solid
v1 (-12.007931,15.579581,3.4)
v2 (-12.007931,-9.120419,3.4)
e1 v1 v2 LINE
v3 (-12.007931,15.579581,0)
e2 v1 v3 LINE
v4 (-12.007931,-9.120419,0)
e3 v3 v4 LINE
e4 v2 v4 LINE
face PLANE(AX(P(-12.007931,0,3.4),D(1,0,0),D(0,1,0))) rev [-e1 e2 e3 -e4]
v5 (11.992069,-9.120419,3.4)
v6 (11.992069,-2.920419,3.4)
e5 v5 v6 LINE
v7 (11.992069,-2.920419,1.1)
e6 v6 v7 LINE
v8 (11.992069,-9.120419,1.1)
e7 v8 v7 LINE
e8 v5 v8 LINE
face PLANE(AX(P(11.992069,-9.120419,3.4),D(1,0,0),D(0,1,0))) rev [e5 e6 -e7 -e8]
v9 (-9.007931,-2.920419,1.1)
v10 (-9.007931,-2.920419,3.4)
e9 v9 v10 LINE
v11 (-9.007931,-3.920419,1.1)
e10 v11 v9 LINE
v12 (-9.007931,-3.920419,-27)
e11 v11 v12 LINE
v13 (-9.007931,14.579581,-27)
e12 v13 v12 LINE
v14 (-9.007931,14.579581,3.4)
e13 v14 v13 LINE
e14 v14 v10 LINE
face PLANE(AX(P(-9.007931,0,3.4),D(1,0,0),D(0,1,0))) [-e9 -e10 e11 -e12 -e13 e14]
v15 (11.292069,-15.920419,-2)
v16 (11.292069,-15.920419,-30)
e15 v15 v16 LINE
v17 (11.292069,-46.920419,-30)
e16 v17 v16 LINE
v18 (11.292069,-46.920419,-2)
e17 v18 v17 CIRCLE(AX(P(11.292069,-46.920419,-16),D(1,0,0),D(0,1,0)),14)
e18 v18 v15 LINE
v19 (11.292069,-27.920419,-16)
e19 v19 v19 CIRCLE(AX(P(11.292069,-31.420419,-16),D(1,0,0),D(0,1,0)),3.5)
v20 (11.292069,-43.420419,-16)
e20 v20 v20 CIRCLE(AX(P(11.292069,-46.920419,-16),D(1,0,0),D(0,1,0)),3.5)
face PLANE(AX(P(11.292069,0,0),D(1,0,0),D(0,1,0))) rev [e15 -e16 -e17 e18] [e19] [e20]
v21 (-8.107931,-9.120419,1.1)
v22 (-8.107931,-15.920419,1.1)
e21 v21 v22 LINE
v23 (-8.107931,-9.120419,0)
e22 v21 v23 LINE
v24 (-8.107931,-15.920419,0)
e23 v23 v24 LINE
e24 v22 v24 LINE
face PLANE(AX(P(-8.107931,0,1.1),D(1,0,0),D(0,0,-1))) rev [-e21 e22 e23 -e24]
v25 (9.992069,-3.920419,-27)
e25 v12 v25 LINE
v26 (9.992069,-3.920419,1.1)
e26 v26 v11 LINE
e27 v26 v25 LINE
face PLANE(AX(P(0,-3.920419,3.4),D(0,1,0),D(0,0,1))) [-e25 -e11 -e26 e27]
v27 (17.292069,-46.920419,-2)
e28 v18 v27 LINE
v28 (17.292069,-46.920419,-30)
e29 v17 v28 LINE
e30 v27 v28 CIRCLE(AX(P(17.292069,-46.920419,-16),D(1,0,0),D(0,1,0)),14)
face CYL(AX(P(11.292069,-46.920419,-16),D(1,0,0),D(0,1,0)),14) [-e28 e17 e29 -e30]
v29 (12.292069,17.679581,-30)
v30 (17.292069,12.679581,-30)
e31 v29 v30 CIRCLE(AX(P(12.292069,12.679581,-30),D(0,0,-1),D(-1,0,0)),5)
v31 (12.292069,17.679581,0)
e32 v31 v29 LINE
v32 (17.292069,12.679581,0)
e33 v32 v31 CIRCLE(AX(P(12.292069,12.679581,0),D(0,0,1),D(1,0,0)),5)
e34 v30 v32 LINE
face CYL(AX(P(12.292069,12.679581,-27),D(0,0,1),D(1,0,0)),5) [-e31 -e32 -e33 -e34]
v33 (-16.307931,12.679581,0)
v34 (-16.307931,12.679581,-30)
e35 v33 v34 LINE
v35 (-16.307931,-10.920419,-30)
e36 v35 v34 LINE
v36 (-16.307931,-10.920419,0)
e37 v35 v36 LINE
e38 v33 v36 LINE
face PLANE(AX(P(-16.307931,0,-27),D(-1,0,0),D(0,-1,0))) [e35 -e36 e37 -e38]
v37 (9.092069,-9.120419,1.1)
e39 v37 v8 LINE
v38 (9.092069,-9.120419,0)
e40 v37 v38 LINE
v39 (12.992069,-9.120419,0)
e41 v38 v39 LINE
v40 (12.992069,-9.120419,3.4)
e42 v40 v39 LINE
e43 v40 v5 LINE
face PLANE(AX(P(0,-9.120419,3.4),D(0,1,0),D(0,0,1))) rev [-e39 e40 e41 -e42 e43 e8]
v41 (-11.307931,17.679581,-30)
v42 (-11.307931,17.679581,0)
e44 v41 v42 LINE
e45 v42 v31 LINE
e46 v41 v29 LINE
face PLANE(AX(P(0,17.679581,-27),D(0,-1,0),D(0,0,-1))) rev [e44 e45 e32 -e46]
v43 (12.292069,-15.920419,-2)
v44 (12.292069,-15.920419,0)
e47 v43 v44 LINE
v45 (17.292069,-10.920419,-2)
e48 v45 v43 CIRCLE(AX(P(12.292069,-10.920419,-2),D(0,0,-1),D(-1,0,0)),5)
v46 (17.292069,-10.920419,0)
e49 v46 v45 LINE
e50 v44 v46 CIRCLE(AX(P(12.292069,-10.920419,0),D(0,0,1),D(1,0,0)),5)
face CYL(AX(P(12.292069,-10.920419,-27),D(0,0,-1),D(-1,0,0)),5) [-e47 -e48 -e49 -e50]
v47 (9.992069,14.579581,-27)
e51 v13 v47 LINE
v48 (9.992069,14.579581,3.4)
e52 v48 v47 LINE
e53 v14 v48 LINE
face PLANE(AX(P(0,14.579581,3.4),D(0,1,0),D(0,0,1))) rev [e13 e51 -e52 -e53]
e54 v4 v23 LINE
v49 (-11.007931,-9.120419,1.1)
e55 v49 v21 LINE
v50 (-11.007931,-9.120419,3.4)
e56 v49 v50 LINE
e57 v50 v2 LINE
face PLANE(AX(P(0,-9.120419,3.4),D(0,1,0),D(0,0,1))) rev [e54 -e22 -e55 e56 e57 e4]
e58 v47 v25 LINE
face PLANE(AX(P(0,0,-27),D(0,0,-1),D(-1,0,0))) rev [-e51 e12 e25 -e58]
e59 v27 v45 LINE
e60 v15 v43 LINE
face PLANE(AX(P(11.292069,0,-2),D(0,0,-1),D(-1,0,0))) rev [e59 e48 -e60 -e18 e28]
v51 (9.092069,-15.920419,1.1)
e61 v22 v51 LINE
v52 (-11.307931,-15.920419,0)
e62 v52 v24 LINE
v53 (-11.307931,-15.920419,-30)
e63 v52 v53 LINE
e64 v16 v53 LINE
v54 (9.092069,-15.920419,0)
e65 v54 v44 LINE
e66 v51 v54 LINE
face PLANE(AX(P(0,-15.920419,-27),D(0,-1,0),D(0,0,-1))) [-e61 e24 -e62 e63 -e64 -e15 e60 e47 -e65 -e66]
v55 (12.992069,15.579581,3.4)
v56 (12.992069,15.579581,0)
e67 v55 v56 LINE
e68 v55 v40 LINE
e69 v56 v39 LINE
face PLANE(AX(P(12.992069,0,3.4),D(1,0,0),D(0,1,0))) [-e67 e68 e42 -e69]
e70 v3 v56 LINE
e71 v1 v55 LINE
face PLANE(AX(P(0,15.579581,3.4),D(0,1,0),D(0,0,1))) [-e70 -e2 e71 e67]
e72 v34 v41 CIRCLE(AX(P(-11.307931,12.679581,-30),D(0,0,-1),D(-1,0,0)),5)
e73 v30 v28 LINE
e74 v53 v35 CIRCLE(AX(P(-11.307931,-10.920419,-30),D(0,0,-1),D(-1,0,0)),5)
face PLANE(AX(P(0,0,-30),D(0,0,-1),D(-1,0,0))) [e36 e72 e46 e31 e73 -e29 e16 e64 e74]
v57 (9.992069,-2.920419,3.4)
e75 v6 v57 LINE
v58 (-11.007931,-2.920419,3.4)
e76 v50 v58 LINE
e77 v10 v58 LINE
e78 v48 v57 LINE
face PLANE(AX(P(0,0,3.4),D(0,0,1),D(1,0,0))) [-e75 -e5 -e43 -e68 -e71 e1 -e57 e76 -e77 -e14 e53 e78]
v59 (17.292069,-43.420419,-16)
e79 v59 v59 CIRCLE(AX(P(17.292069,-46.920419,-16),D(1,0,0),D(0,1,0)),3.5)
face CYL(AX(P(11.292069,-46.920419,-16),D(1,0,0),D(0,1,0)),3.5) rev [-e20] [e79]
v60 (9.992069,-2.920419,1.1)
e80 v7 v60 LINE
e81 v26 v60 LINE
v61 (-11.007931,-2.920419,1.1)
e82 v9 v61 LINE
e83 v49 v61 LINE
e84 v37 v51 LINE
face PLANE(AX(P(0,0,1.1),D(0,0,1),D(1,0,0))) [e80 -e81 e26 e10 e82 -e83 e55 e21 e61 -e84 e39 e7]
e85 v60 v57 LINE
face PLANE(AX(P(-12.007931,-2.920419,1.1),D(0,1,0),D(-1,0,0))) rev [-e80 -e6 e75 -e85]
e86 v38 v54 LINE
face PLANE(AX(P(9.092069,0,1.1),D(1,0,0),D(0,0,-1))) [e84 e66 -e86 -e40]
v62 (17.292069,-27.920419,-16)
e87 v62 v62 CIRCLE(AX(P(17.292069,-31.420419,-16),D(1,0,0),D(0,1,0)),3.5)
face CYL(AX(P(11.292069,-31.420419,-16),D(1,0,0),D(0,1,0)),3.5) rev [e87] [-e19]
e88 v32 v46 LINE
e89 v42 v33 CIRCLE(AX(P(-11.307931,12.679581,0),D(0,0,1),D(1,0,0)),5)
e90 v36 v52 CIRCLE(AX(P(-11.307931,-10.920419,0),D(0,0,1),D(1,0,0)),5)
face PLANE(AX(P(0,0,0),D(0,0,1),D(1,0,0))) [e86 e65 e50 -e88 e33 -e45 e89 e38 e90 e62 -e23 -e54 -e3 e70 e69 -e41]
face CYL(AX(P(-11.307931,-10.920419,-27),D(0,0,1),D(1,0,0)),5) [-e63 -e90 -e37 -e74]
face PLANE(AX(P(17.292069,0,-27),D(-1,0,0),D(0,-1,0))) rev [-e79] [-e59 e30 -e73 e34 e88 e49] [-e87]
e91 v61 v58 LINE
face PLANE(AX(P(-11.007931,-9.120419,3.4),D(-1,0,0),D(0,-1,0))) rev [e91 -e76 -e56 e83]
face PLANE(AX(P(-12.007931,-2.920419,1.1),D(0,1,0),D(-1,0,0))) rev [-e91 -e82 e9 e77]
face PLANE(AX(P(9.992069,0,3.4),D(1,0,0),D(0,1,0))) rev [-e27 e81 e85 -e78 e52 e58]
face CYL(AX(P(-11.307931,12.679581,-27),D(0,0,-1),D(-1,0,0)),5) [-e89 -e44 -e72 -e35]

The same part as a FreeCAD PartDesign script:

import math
import FreeCAD as App
import Part
import Sketcher
from FreeCAD import Vector
Q = App.Units.Quantity


def edges_at(feature, points):
    """Names of the edges that pass closest to the given points."""
    edges = feature.Shape.Edges
    near = lambda p: min(range(len(edges)), key=lambda i: edges[i].distToShape(Part.Vertex(*p))[0])
    return sorted({f"Edge{near(p) + 1}" for p in points})


def add_polygon(sketch, points):
    """Adds a closed chain of lines whose ends are joined by coincident constraints."""
    first, n = sketch.GeometryCount, len(points)
    for a, b in zip(points, points[1:] + points[:1]):
        sketch.addGeometry(Part.LineSegment(App.Vector(*a, 0), App.Vector(*b, 0)), False)
    for i in range(n):
        sketch.addConstraint(Sketcher.Constraint("Coincident", first + i, 2, first + (i + 1) % n, 1))

doc = App.newDocument("Part")
body = doc.addObject("PartDesign::Body", "Body")

sketch1 = body.newObject("Sketcher::SketchObject", "Sketch")
sketch1.AttachmentSupport = (doc.getObject("XY_Plane"), [""])
sketch1.MapMode = "FlatFace"
add_polygon(sketch1, [(-12, 16), (-12, -9), (13, -9), (13, 16)])
add_polygon(sketch1, [(10, -4), (-9, -4), (-9, 15), (10, 15)])
sketch1.addConstraint(Sketcher.Constraint("Vertical", 0))
sketch1.addConstraint(Sketcher.Constraint("Horizontal", 1))
sketch1.addConstraint(Sketcher.Constraint("Vertical", 2))
sketch1.addConstraint(Sketcher.Constraint("Horizontal", 3))
sketch1.addConstraint(Sketcher.Constraint("Horizontal", 4))
sketch1.addConstraint(Sketcher.Constraint("Vertical", 5))
sketch1.addConstraint(Sketcher.Constraint("Horizontal", 6))
sketch1.addConstraint(Sketcher.Constraint("Vertical", 7))
sketch1.addConstraint(Sketcher.Constraint("DistanceX", 1, 1, 1, 2, Q("25 mm")))
sketch1.addConstraint(Sketcher.Constraint("DistanceX", 4, 2, 4, 1, Q("19 mm")))
sketch1.addConstraint(Sketcher.Constraint("DistanceY", 0, 2, 0, 1, Q("24.7 mm")))
sketch1.addConstraint(Sketcher.Constraint("DistanceY", 5, 1, 5, 2, Q("18.5 mm")))
sketch1.addConstraint(Sketcher.Constraint("DistanceX", 0, 2, 4, 2, Q("3 mm")))
sketch1.addConstraint(Sketcher.Constraint("DistanceY", 5, 2, 3, 2, Q("1 mm")))
sketch1.addConstraint(Sketcher.Constraint("DistanceX", 0, 2, -1, 1, Q("12.007931 mm")))
sketch1.addConstraint(Sketcher.Constraint("DistanceY", 0, 2, -1, 1, Q("9.120419 mm")))
pad1 = body.newObject("PartDesign::Pad", "Pad")
pad1.Profile = sketch1
pad1.Length = 3.4

sketch2 = body.newObject("Sketcher::SketchObject", "Sketch001")
sketch2.AttachmentSupport = (doc.getObject("XY_Plane"), [""])
sketch2.MapMode = "FlatFace"
add_polygon(sketch2, [(-16, 18), (-16, -16), (17, -16), (17, 18)])
add_polygon(sketch2, [(10, -4), (-9, -4), (-9, 15), (10, 15)])
sketch2.addConstraint(Sketcher.Constraint("Vertical", 0))
sketch2.addConstraint(Sketcher.Constraint("Horizontal", 1))
sketch2.addConstraint(Sketcher.Constraint("Vertical", 2))
sketch2.addConstraint(Sketcher.Constraint("Horizontal", 3))
sketch2.addConstraint(Sketcher.Constraint("Horizontal", 4))
sketch2.addConstraint(Sketcher.Constraint("Vertical", 5))
sketch2.addConstraint(Sketcher.Constraint("Horizontal", 6))
sketch2.addConstraint(Sketcher.Constraint("Vertical", 7))
sketch2.addConstraint(Sketcher.Constraint("Equal", 3, 0))
sketch2.addConstraint(Sketcher.Constraint("DistanceX", 4, 2, 4, 1, Q("19 mm")))
sketch2.addConstraint(Sketcher.Constraint("DistanceX", 1, 1, 1, 2, Q("33.6 mm")))
sketch2.addConstraint(Sketcher.Constraint("DistanceY", 5, 1, 5, 2, Q("18.5 mm")))
sketch2.addConstraint(Sketcher.Constraint("DistanceY", 0, 2, 4, 2, Q("12 mm")))
sketch2.addConstraint(Sketcher.Constraint("DistanceX", 0, 2, 4, 2, Q("7.3 mm")))
sketch2.addConstraint(Sketcher.Constraint("DistanceX", 0, 2, -1, 1, Q("16.307931 mm")))
sketch2.addConstraint(Sketcher.Constraint("DistanceY", 0, 2, -1, 1, Q("15.920419 mm")))
pad2 = body.newObject("PartDesign::Pad", "Pad001")
pad2.Profile = sketch2
pad2.Length = 27
pad2.Reversed = True

sketch3 = body.newObject("Sketcher::SketchObject", "Sketch002")
sketch3.AttachmentSupport = (doc.getObject("XY_Plane"), [""])
sketch3.MapMode = "FlatFace"
sketch3.AttachmentOffset = App.Placement(Vector(0, 0, -27), App.Rotation())
add_polygon(sketch3, [(17, 18), (17, -16), (-16, -16), (-16, 18)])
sketch3.addConstraint(Sketcher.Constraint("Vertical", 0))
sketch3.addConstraint(Sketcher.Constraint("Horizontal", 1))
sketch3.addConstraint(Sketcher.Constraint("Vertical", 2))
sketch3.addConstraint(Sketcher.Constraint("Horizontal", 3))
sketch3.addConstraint(Sketcher.Constraint("Equal", 3, 0))
sketch3.addConstraint(Sketcher.Constraint("DistanceX", 1, 2, 1, 1, Q("33.6 mm")))
sketch3.addConstraint(Sketcher.Constraint("DistanceX", -1, 1, 0, 2, Q("17.292069 mm")))
sketch3.addConstraint(Sketcher.Constraint("DistanceY", 0, 2, -1, 1, Q("15.920419 mm")))
pad3 = body.newObject("PartDesign::Pad", "Pad002")
pad3.Profile = sketch3
pad3.Length = 3
pad3.Reversed = True

sketch4 = body.newObject("Sketcher::SketchObject", "Sketch003")
sketch4.AttachmentSupport = (doc.getObject("YZ_Plane"), [""])
sketch4.MapMode = "FlatFace"
sketch4.AttachmentOffset = App.Placement(Vector(0, 0, 17.292069), App.Rotation())
sketch4.addGeometry(Part.LineSegment(Vector(-46.9, -30, 0), Vector(-15.9, -30, 0)), False)
sketch4.addGeometry(Part.LineSegment(Vector(-15.9, -30, 0), Vector(-15.9, -2, 0)), False)
sketch4.addGeometry(Part.LineSegment(Vector(-15.9, -2, 0), Vector(-46.9, -2, 0)), False)
sketch4.addGeometry(Part.ArcOfCircle(Part.Circle(Vector(-46.9, -16, 0), Vector(0, 0, 1), 14), math.radians(90), math.radians(270)), False)
sketch4.addGeometry(Part.ArcOfCircle(Part.Circle(Vector(-46.9, -16, 0), Vector(0, 0, 1), 3.5), math.radians(0), math.radians(90)), False)
sketch4.addGeometry(Part.ArcOfCircle(Part.Circle(Vector(-46.9, -16, 0), Vector(0, 0, 1), 3.5), math.radians(-90), math.radians(0)), False)
sketch4.addGeometry(Part.ArcOfCircle(Part.Circle(Vector(-46.9, -16, 0), Vector(0, 0, 1), 3.5), math.radians(90), math.radians(270)), False)
sketch4.addGeometry(Part.ArcOfCircle(Part.Circle(Vector(-31.4, -16, 0), Vector(0, 0, 1), 3.5), math.radians(180), math.radians(239)), False)
sketch4.addGeometry(Part.ArcOfCircle(Part.Circle(Vector(-31.4, -16, 0), Vector(0, 0, 1), 3.5), math.radians(121), math.radians(180)), False)
sketch4.addGeometry(Part.ArcOfCircle(Part.Circle(Vector(-31.4, -16, 0), Vector(0, 0, 1), 3.5), math.radians(0), math.radians(121)), False)
sketch4.addGeometry(Part.ArcOfCircle(Part.Circle(Vector(-31.4, -16, 0), Vector(0, 0, 1), 3.5), math.radians(-90), math.radians(0)), False)
sketch4.addGeometry(Part.ArcOfCircle(Part.Circle(Vector(-31.4, -16, 0), Vector(0, 0, 1), 3.5), math.radians(-121), math.radians(-90)), False)
sketch4.addConstraint(Sketcher.Constraint("Coincident", 0, 2, 1, 1))
sketch4.addConstraint(Sketcher.Constraint("Coincident", 1, 2, 2, 1))
sketch4.addConstraint(Sketcher.Constraint("Tangent", 2, 2, 3, 1))
sketch4.addConstraint(Sketcher.Constraint("Tangent", 3, 2, 0, 1))
sketch4.addConstraint(Sketcher.Constraint("Tangent", 4, 1, 5, 2))
sketch4.addConstraint(Sketcher.Constraint("Tangent", 5, 1, 6, 2))
sketch4.addConstraint(Sketcher.Constraint("Tangent", 6, 1, 4, 2))
sketch4.addConstraint(Sketcher.Constraint("Tangent", 7, 1, 8, 2))
sketch4.addConstraint(Sketcher.Constraint("Tangent", 8, 1, 9, 2))
sketch4.addConstraint(Sketcher.Constraint("Tangent", 9, 1, 10, 2))
sketch4.addConstraint(Sketcher.Constraint("Tangent", 10, 1, 11, 2))
sketch4.addConstraint(Sketcher.Constraint("Tangent", 11, 1, 7, 2))
sketch4.addConstraint(Sketcher.Constraint("Horizontal", 0))
sketch4.addConstraint(Sketcher.Constraint("Vertical", 1))
sketch4.addConstraint(Sketcher.Constraint("Horizontal", 2))
sketch4.addConstraint(Sketcher.Constraint("Coincident", 4, 3, 3, 3))
sketch4.addConstraint(Sketcher.Constraint("Coincident", 9, 3, 7, 3))
sketch4.addConstraint(Sketcher.Constraint("Equal", 6, 7))
sketch4.addConstraint(Sketcher.Constraint("Horizontal", 6, 3, 7, 3))
sketch4.addConstraint(Sketcher.Constraint("Horizontal", 11, 3, 4, 1))
sketch4.addConstraint(Sketcher.Constraint("Horizontal", 4, 1, 7, 1))
sketch4.addConstraint(Sketcher.Constraint("Horizontal", 7, 1, 9, 1))
sketch4.addConstraint(Sketcher.Constraint("Vertical", 3, 2, 5, 1))
sketch4.addConstraint(Sketcher.Constraint("Vertical", 5, 1, 6, 1))
sketch4.addConstraint(Sketcher.Constraint("Vertical", 11, 3, 10, 1))
sketch4.addConstraint(Sketcher.Constraint("Vertical", 8, 1, 11, 1))
sketch4.addConstraint(Sketcher.Constraint("Radius", 3, Q("14 mm")))
sketch4.addConstraint(Sketcher.Constraint("Radius", 4, Q("3.5 mm")))
sketch4.addConstraint(Sketcher.Constraint("DistanceX", 0, 1, 0, 2, Q("31 mm")))
sketch4.addConstraint(Sketcher.Constraint("DistanceY", 3, 3, -1, 1, Q("16 mm")))
sketch4.addConstraint(Sketcher.Constraint("DistanceX", 4, 1, 7, 3, Q("12 mm")))
sketch4.addConstraint(Sketcher.Constraint("DistanceX", 8, 1, -1, 1, Q("33.242999 mm")))
sketch4.addConstraint(Sketcher.Constraint("DistanceX", 3, 3, -1, 1, Q("46.920419 mm")))
pad4 = body.newObject("PartDesign::Pad", "Pad003")
pad4.Profile = sketch4
pad4.Length = 6
pad4.Reversed = True
doc.recompute()

fillet = body.newObject("PartDesign::Fillet", "Fillet")
fillet.Base = (pad4, edges_at(pad4, [
    (17.292, 17.68, -15),
    (-16.308, -15.92, -15),
    (-16.308, 17.68, -15),
    (17.292, -15.92, -1),
]))
fillet.Radius = 5

sketch5 = body.newObject("Sketcher::SketchObject", "Sketch004")
sketch5.AttachmentSupport = (doc.getObject("XY_Plane"), [""])
sketch5.MapMode = "FlatFace"
sketch5.AttachmentOffset = App.Placement(Vector(0, 0, 3.4), App.Rotation())
add_polygon(sketch5, [(-9, -4), (-9, -9), (9, -9), (9, -4)])
sketch5.addConstraint(Sketcher.Constraint("Vertical", 0))
sketch5.addConstraint(Sketcher.Constraint("Horizontal", 1))
sketch5.addConstraint(Sketcher.Constraint("Vertical", 2))
sketch5.addConstraint(Sketcher.Constraint("Horizontal", 3))
sketch5.addConstraint(Sketcher.Constraint("DistanceX", 1, 1, 1, 2, Q("18 mm")))
sketch5.addConstraint(Sketcher.Constraint("DistanceY", 0, 2, 0, 1, Q("5.2 mm")))
sketch5.addConstraint(Sketcher.Constraint("DistanceX", 0, 2, -1, 1, Q("8.507931 mm")))
sketch5.addConstraint(Sketcher.Constraint("DistanceY", 0, 2, -1, 1, Q("9.120419 mm")))
pocket1 = body.newObject("PartDesign::Pocket", "Pocket")
pocket1.Profile = sketch5
pocket1.Length = 2.3

sketch6 = body.newObject("Sketcher::SketchObject", "Sketch005")
sketch6.AttachmentSupport = (doc.getObject("XY_Plane"), [""])
sketch6.MapMode = "FlatFace"
add_polygon(sketch6, [(-8, -9), (-8, -16), (9, -16), (9, -9)])
sketch6.addConstraint(Sketcher.Constraint("Vertical", 0))
sketch6.addConstraint(Sketcher.Constraint("Horizontal", 1))
sketch6.addConstraint(Sketcher.Constraint("Vertical", 2))
sketch6.addConstraint(Sketcher.Constraint("Horizontal", 3))
sketch6.addConstraint(Sketcher.Constraint("DistanceX", 1, 1, 1, 2, Q("17.2 mm")))
sketch6.addConstraint(Sketcher.Constraint("DistanceY", 0, 2, 0, 1, Q("6.8 mm")))
sketch6.addConstraint(Sketcher.Constraint("DistanceX", 0, 2, -1, 1, Q("8.107931 mm")))
sketch6.addConstraint(Sketcher.Constraint("DistanceY", 0, 2, -1, 1, Q("15.920419 mm")))
pad5 = body.newObject("PartDesign::Pad", "Pad004")
pad5.Profile = sketch6
pad5.Length = 1.1

sketch7 = body.newObject("Sketcher::SketchObject", "Sketch006")
sketch7.AttachmentSupport = (doc.getObject("XY_Plane"), [""])
sketch7.MapMode = "FlatFace"
sketch7.AttachmentOffset = App.Placement(Vector(0, 0, 3.4), App.Rotation())
add_polygon(sketch7, [(-12, -3), (-12, -9), (13, -9), (13, -3)])
sketch7.addConstraint(Sketcher.Constraint("Vertical", 0))
sketch7.addConstraint(Sketcher.Constraint("Horizontal", 1))
sketch7.addConstraint(Sketcher.Constraint("Vertical", 2))
sketch7.addConstraint(Sketcher.Constraint("Horizontal", 3))
sketch7.addConstraint(Sketcher.Constraint("DistanceX", 1, 1, 1, 2, Q("25 mm")))
sketch7.addConstraint(Sketcher.Constraint("DistanceY", 0, 2, 0, 1, Q("6.2 mm")))
sketch7.addConstraint(Sketcher.Constraint("DistanceX", 0, 2, -1, 1, Q("12.007931 mm")))
sketch7.addConstraint(Sketcher.Constraint("DistanceY", 0, 2, -1, 1, Q("9.120419 mm")))
pocket2 = body.newObject("PartDesign::Pocket", "Pocket001")
pocket2.Profile = sketch7
pocket2.Length = 2.3

sketch8 = body.newObject("Sketcher::SketchObject", "Sketch007")
sketch8.AttachmentSupport = (doc.getObject("XZ_Plane"), [""])
sketch8.MapMode = "FlatFace"
sketch8.AttachmentOffset = App.Placement(Vector(0, 0, 2.920419), App.Rotation())
add_polygon(sketch8, [(-12, 3.4), (-12, 1.1), (-11, 1.1), (-11, 3.4)])
add_polygon(sketch8, [(12, 3.4), (12, 1.1), (13, 1.1), (13, 3.4)])
sketch8.addConstraint(Sketcher.Constraint("Vertical", 0))
sketch8.addConstraint(Sketcher.Constraint("Horizontal", 1))
sketch8.addConstraint(Sketcher.Constraint("Vertical", 2))
sketch8.addConstraint(Sketcher.Constraint("Horizontal", 3))
sketch8.addConstraint(Sketcher.Constraint("Vertical", 4))
sketch8.addConstraint(Sketcher.Constraint("Horizontal", 5))
sketch8.addConstraint(Sketcher.Constraint("Vertical", 6))
sketch8.addConstraint(Sketcher.Constraint("Horizontal", 7))
sketch8.addConstraint(Sketcher.Constraint("Horizontal", 1, 2, 4, 2))
sketch8.addConstraint(Sketcher.Constraint("Horizontal", 3, 2, 6, 2))
sketch8.addConstraint(Sketcher.Constraint("Equal", 3, 5))
sketch8.addConstraint(Sketcher.Constraint("DistanceX", 1, 1, 1, 2, Q("1 mm")))
sketch8.addConstraint(Sketcher.Constraint("DistanceY", 0, 2, 0, 1, Q("2.3 mm")))
sketch8.addConstraint(Sketcher.Constraint("DistanceX", 1, 2, 4, 2, Q("23 mm")))
sketch8.addConstraint(Sketcher.Constraint("DistanceY", -1, 1, 0, 2, Q("1.1 mm")))
sketch8.addConstraint(Sketcher.Constraint("DistanceX", 0, 2, -1, 1, Q("12.007931 mm")))
pad6 = body.newObject("PartDesign::Pad", "Pad005")
pad6.Profile = sketch8
pad6.Length = 6.2

doc.recompute()
